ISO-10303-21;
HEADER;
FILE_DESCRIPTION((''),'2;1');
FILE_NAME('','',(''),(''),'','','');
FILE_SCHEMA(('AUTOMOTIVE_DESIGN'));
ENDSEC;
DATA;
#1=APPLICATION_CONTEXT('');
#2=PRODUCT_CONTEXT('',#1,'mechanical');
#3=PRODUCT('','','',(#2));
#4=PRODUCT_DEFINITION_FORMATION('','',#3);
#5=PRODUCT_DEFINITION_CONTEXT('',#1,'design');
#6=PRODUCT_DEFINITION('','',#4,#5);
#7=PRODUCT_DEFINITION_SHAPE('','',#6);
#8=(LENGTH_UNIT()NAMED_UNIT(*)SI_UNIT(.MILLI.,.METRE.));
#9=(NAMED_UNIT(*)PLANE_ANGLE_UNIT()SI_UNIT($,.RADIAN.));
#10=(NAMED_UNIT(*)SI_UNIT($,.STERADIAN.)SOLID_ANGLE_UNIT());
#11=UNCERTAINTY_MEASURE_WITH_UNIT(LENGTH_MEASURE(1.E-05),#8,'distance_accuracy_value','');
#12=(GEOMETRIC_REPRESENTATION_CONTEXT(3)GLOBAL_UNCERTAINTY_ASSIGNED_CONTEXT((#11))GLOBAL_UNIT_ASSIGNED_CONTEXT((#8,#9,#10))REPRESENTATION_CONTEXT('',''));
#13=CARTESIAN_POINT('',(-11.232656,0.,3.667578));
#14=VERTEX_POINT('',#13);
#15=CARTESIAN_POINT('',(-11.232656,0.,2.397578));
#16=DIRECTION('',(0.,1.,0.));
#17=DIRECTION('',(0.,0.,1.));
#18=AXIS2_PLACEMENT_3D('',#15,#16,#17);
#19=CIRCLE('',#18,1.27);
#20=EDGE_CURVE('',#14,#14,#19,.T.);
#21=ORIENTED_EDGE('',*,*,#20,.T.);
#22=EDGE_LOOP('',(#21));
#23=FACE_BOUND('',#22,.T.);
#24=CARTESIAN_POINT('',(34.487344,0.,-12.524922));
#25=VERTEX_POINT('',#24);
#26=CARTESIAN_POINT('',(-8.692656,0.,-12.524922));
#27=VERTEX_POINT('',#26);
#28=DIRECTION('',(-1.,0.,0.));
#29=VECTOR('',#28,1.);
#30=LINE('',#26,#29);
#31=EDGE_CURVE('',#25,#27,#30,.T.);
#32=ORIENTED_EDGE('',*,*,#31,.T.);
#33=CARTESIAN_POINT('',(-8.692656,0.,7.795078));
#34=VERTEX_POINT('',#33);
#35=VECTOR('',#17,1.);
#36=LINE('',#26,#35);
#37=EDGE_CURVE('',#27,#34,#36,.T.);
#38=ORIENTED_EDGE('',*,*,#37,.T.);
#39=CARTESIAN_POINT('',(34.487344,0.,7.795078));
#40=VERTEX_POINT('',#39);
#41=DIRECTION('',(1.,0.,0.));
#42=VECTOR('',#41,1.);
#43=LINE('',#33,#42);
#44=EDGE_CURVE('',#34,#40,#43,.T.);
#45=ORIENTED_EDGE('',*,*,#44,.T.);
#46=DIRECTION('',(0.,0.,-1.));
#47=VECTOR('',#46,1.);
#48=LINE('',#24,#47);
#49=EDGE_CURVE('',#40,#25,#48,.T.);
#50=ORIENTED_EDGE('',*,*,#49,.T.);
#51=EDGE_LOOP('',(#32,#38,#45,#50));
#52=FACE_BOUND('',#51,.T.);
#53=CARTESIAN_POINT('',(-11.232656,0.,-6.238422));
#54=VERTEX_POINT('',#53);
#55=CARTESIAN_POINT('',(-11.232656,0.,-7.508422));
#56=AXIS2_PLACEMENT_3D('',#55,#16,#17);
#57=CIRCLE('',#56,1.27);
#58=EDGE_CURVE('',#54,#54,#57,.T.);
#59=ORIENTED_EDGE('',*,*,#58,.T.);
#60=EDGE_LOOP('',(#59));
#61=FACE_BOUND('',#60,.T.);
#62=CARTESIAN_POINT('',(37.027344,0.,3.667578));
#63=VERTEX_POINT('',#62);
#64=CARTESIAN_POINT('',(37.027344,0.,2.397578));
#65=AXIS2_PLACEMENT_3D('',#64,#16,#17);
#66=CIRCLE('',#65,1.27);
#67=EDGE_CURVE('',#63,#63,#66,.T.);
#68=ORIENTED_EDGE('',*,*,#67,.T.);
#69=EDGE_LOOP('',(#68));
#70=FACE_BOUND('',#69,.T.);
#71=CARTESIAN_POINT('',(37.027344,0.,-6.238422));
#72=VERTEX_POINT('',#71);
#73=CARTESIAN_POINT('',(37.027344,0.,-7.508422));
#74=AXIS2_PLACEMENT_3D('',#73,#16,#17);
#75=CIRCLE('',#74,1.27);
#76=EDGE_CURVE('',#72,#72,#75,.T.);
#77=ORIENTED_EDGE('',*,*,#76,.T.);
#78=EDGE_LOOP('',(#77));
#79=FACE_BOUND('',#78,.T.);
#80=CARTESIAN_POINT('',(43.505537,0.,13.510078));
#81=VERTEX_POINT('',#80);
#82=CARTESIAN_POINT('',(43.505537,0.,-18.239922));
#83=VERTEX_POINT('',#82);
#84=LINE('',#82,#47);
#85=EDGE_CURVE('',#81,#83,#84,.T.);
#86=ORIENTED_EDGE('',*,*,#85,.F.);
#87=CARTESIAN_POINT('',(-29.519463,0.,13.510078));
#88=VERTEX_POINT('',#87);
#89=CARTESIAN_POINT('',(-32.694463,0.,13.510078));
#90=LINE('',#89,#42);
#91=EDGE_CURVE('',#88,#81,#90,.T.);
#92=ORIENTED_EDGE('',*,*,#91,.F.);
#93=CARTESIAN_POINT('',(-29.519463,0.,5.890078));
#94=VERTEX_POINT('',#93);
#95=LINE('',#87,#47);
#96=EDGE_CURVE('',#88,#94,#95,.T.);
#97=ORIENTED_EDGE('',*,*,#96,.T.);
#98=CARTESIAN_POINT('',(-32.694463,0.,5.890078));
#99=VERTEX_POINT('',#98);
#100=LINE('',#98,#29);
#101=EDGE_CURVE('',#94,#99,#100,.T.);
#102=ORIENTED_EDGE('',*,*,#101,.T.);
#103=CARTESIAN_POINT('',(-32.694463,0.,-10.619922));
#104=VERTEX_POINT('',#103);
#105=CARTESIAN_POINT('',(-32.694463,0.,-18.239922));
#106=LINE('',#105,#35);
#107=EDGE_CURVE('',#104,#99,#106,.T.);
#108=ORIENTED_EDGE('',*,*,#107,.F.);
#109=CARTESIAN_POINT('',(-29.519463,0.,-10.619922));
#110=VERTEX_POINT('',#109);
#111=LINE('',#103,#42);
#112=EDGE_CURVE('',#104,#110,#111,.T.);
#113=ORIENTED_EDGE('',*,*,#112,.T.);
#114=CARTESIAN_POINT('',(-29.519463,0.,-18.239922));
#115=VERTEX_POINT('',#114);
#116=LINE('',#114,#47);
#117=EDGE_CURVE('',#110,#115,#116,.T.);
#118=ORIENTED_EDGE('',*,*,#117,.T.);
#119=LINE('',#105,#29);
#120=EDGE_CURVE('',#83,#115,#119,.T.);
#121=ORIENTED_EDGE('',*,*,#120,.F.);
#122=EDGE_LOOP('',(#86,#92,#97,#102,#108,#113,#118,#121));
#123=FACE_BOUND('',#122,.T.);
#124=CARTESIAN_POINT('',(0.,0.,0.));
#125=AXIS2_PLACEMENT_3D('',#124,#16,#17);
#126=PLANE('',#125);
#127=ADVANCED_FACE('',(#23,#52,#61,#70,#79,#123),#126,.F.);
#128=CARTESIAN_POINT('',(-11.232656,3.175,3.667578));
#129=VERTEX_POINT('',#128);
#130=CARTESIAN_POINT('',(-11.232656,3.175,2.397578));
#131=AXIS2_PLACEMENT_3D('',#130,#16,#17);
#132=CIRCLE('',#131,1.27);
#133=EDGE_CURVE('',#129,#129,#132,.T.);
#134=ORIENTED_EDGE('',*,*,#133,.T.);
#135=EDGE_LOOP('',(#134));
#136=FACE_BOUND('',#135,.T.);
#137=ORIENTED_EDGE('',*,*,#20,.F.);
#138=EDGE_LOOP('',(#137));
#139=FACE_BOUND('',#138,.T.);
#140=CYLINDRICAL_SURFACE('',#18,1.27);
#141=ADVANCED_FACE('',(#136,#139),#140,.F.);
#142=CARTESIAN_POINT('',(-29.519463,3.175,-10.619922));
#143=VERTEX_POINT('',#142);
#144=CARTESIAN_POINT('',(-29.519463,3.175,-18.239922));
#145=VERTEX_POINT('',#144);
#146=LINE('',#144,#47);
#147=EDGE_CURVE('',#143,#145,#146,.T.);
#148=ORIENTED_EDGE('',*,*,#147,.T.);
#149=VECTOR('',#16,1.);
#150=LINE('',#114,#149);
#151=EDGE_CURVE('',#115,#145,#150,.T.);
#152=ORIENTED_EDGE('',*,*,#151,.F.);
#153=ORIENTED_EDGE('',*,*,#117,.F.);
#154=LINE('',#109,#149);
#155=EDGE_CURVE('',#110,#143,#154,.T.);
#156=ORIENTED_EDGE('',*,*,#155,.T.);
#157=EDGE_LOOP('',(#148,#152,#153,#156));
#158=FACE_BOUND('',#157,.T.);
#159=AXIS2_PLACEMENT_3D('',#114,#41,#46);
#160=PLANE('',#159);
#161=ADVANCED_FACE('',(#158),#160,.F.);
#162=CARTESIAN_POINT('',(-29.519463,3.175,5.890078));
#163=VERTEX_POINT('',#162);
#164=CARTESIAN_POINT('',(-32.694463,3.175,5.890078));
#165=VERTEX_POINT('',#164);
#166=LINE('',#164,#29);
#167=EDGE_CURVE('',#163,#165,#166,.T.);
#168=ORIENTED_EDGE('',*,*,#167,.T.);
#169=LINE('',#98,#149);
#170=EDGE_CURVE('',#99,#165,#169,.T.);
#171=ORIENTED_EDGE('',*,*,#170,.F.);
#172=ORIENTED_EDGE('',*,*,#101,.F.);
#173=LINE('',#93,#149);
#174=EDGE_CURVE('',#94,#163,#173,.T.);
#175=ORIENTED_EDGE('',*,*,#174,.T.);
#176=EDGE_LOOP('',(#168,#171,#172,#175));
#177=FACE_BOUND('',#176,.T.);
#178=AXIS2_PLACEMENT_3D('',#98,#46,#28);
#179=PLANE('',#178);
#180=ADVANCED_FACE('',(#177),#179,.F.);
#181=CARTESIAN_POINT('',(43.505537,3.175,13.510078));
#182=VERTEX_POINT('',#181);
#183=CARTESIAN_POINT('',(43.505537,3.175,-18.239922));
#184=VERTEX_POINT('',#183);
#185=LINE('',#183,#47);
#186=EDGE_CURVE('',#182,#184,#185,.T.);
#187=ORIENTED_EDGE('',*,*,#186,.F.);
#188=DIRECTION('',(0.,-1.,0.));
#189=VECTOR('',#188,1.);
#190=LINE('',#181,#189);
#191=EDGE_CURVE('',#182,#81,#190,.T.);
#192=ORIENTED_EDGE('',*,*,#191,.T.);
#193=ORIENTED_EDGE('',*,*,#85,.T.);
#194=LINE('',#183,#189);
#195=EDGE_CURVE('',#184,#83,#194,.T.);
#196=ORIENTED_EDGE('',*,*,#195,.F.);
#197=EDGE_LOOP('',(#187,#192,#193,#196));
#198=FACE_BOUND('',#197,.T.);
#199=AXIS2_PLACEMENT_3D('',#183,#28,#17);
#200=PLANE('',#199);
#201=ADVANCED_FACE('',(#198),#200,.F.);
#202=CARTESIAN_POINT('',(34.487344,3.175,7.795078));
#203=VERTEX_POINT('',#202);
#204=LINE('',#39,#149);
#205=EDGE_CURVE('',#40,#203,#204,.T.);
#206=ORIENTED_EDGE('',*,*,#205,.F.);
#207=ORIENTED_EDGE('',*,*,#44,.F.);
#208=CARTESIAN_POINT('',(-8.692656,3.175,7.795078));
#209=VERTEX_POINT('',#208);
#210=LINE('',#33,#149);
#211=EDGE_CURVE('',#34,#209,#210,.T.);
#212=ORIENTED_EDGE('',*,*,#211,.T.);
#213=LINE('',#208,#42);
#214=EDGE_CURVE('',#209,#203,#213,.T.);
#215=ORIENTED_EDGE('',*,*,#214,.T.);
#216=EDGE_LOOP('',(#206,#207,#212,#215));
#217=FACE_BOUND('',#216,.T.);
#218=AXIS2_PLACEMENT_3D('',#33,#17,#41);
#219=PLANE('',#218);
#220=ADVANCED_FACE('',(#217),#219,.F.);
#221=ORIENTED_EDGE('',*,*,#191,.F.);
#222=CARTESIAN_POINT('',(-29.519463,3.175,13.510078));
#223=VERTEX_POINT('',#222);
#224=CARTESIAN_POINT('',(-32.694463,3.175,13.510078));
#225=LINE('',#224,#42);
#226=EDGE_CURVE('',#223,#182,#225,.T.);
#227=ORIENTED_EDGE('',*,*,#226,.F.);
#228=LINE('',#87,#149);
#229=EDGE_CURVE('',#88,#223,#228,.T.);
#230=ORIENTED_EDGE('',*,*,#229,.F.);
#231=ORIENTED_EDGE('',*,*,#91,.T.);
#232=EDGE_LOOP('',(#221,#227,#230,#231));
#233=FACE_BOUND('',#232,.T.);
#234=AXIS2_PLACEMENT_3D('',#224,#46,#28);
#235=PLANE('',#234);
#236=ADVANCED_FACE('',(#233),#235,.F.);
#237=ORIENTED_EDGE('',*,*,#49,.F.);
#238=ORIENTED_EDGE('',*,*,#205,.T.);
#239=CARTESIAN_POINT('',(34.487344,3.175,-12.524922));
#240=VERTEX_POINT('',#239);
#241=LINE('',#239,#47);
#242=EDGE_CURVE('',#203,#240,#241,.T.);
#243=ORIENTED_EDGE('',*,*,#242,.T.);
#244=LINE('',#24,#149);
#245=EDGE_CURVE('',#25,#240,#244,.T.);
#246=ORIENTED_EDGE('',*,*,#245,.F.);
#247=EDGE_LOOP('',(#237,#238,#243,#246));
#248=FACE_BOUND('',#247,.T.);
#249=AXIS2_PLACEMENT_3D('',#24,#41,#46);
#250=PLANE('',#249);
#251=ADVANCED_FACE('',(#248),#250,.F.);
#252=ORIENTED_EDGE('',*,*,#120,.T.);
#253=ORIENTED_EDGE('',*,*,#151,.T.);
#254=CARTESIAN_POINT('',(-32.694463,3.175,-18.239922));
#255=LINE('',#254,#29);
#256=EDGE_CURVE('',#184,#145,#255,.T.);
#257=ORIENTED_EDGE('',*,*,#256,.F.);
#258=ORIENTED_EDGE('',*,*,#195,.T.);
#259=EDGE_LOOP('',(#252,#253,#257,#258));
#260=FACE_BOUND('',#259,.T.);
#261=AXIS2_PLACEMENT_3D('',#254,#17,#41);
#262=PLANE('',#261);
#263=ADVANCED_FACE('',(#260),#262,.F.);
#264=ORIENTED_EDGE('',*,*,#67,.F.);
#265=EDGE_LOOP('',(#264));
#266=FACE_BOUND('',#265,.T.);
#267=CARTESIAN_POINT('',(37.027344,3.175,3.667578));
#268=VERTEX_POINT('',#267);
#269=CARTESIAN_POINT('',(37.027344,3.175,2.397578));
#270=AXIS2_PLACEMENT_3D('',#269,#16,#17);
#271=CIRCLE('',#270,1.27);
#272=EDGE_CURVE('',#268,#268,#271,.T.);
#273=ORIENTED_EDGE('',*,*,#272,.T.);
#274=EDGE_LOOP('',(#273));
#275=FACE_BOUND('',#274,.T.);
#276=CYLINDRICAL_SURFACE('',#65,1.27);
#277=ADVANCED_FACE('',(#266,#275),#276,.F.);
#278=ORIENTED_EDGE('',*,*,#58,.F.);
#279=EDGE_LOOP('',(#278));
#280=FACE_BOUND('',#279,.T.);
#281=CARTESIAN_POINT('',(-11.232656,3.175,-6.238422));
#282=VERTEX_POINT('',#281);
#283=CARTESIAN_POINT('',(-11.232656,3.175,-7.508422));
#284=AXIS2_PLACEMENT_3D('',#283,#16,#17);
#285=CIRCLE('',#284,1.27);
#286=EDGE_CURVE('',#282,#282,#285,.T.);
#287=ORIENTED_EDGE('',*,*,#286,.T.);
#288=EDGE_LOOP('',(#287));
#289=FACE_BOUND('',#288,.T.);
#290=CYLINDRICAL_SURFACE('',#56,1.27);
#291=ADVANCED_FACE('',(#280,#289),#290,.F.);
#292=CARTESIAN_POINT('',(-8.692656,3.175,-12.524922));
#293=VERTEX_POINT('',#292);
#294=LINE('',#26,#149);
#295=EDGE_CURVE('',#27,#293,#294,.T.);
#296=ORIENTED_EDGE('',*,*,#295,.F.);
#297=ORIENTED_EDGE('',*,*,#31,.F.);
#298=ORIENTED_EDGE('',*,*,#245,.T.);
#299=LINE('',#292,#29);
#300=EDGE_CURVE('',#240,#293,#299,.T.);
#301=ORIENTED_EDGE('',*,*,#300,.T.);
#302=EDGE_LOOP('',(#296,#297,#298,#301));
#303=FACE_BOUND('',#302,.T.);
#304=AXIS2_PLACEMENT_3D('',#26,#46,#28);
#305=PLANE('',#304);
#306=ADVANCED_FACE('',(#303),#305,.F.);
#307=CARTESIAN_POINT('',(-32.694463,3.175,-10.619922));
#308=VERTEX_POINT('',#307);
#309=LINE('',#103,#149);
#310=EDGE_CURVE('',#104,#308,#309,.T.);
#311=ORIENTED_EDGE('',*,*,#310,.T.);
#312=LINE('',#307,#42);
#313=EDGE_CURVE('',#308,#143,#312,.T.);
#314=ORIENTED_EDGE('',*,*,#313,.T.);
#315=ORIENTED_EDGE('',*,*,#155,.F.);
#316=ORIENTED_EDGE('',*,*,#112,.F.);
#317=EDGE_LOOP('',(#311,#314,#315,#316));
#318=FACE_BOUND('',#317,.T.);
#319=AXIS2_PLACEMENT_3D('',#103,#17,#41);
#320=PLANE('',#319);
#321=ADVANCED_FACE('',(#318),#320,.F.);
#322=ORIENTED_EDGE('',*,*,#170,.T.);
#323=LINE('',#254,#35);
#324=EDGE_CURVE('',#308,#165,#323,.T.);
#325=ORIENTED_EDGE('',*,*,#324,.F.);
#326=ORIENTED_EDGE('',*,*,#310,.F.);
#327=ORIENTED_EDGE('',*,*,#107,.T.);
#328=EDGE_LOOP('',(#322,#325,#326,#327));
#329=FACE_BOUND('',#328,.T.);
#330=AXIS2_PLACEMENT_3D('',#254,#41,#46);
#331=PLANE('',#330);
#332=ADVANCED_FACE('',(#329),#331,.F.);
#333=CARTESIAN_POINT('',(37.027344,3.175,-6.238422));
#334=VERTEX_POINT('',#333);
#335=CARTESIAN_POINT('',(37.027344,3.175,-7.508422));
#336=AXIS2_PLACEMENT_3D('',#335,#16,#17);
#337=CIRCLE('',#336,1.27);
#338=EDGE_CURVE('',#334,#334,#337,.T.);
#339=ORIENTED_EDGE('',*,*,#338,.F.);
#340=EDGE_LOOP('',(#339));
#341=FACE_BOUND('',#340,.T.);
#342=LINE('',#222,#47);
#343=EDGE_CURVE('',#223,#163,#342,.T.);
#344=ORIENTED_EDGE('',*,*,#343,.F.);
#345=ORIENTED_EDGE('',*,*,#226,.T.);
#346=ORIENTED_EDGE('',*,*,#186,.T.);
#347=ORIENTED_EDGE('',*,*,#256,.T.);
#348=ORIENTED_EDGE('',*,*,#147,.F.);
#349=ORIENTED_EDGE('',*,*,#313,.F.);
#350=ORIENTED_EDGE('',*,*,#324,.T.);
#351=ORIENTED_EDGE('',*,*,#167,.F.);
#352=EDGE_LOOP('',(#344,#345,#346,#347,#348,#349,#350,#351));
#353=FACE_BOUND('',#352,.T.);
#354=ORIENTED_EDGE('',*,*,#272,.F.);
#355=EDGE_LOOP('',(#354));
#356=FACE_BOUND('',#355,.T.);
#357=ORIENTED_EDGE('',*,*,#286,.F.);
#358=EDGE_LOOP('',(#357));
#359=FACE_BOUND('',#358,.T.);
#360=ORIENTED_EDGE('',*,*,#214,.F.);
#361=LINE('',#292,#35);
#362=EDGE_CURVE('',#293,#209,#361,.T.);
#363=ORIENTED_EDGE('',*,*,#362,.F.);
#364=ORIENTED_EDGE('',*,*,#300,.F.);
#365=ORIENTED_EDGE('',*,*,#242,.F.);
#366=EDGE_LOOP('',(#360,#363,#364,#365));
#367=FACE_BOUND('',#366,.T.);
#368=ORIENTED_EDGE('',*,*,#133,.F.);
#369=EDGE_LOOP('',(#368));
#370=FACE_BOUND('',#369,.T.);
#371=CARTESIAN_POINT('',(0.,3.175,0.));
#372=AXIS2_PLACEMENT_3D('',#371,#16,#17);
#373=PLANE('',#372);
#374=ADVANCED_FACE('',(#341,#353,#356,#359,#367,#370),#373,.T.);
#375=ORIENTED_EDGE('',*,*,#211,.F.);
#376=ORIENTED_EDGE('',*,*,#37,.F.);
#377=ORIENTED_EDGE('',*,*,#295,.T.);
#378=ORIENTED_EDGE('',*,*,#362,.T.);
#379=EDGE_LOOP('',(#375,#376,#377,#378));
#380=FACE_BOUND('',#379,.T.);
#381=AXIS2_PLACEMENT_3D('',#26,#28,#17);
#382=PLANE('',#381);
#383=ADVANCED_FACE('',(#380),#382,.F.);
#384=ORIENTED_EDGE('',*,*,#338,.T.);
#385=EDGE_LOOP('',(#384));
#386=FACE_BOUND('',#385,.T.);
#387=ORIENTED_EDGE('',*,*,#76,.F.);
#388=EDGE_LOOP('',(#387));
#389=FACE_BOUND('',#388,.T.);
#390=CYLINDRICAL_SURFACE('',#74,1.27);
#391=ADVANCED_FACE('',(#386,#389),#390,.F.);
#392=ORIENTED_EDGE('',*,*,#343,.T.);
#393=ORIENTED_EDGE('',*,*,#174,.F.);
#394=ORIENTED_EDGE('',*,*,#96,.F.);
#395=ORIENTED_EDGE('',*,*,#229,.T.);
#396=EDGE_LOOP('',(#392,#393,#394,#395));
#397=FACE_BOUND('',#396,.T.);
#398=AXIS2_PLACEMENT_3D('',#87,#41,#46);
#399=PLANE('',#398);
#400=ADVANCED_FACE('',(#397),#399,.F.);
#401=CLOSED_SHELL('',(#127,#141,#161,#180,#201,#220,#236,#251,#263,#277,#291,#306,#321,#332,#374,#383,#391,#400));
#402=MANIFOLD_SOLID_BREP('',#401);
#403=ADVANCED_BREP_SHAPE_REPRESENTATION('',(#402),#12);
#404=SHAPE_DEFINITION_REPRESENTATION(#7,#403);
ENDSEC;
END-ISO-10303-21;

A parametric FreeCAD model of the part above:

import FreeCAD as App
import Part
import Sketcher
Q = App.Units.Quantity

doc = App.newDocument("Part")
params = doc.addObject("Spreadsheet::Sheet", "Params")
for row, (alias, value) in enumerate([
    ("sketch1_width", "3 in"),
    ("sketch1_height", "1.25 in"),
    ("pad1_length", "0.125 in"),
    ("sketch2_diameter", "0.1 in"),
    ("sketch2_width", "1.7 in"),
    ("sketch2_height", "0.3 in"),
    ("sketch2_height2", "0.8 in"),
    ("sketch2_width2", "0.125 in"),
    ("pocket1_length", "0.125 in"),
], start=1):
    params.set(f"A{row}", alias)
    params.set(f"B{row}", "=" + value)
    params.setAlias(f"B{row}", alias)

body = doc.addObject("PartDesign::Body", "Body")

# Sketch on XZ plane
sketch1 = body.newObject("Sketcher::SketchObject", "Sketch")
sketch1.AttachmentSupport = (doc.getObject("XZ_Plane"), [""])
sketch1.MapMode = "FlatFace"
sketch1.addGeometry(Part.LineSegment(App.Vector(-33, -18, 0), App.Vector(-33, 14, 0)), False)
sketch1.addGeometry(Part.LineSegment(App.Vector(-33, 14, 0), App.Vector(44, 14, 0)), False)
sketch1.addGeometry(Part.LineSegment(App.Vector(44, 14, 0), App.Vector(44, -18, 0)), False)
sketch1.addGeometry(Part.LineSegment(App.Vector(44, -18, 0), App.Vector(-33, -18, 0)), False)
sketch1.addConstraint(Sketcher.Constraint("Coincident", 0, 2, 1, 1))
sketch1.addConstraint(Sketcher.Constraint("Coincident", 1, 2, 2, 1))
sketch1.addConstraint(Sketcher.Constraint("Coincident", 2, 2, 3, 1))
sketch1.addConstraint(Sketcher.Constraint("Coincident", 3, 2, 0, 1))
sketch1.addConstraint(Sketcher.Constraint("Vertical", 0))
sketch1.addConstraint(Sketcher.Constraint("Horizontal", 1))
sketch1.addConstraint(Sketcher.Constraint("Vertical", 2))
sketch1.addConstraint(Sketcher.Constraint("Horizontal", 3))
sketch1.addConstraint(Sketcher.Constraint("DistanceX", 1, 1, 1, 2, Q("3 in")))
sketch1.addConstraint(Sketcher.Constraint("DistanceY", 0, 1, 0, 2, Q("1.25 in")))
sketch1.addConstraint(Sketcher.Constraint("DistanceX", 0, 2, -1, 1, Q("32.694463 mm")))
sketch1.addConstraint(Sketcher.Constraint("DistanceY", -1, 1, 0, 2, Q("13.510078 mm")))
sketch1.setExpression("Constraints[8]", "Params.sketch1_width")
sketch1.setExpression("Constraints[9]", "Params.sketch1_height")
pad1 = body.newObject("PartDesign::Pad", "Pad")
pad1.Profile = sketch1
pad1.setExpression("Length", "Params.pad1_length")
pad1.Reversed = True

# Sketch on XZ plane
sketch2 = body.newObject("Sketcher::SketchObject", "Sketch001")
sketch2.AttachmentSupport = (doc.getObject("XZ_Plane"), [""])
sketch2.MapMode = "FlatFace"
sketch2.AttachmentOffset = App.Placement(App.Vector(0, 0, -0.125 * 25.4), App.Rotation())
sketch2.addGeometry(Part.Circle(App.Vector(37, -7.5, 0), App.Vector(0, 0, 1), 1.3), False)
sketch2.addGeometry(Part.Circle(App.Vector(37, 2.4, 0), App.Vector(0, 0, 1), 1.3), False)
sketch2.addGeometry(Part.Circle(App.Vector(-11.2, -7.5, 0), App.Vector(0, 0, 1), 1.3), False)
sketch2.addGeometry(Part.Circle(App.Vector(-11.2, 2.4, 0), App.Vector(0, 0, 1), 1.3), False)
sketch2.addGeometry(Part.LineSegment(App.Vector(-32.7, -18.2, 0), App.Vector(-32.7, -10.6, 0)), False)
sketch2.addGeometry(Part.LineSegment(App.Vector(-32.7, -10.6, 0), App.Vector(-29.5, -10.6, 0)), False)
sketch2.addGeometry(Part.LineSegment(App.Vector(-29.5, -10.6, 0), App.Vector(-29.5, -18.2, 0)), False)
sketch2.addGeometry(Part.LineSegment(App.Vector(-29.5, -18.2, 0), App.Vector(-32.7, -18.2, 0)), False)
sketch2.addGeometry(Part.LineSegment(App.Vector(-32.7, 5.9, 0), App.Vector(-32.7, 13.5, 0)), False)
sketch2.addGeometry(Part.LineSegment(App.Vector(-32.7, 13.5, 0), App.Vector(-29.5, 13.5, 0)), False)
sketch2.addGeometry(Part.LineSegment(App.Vector(-29.5, 13.5, 0), App.Vector(-29.5, 5.9, 0)), False)
sketch2.addGeometry(Part.LineSegment(App.Vector(-29.5, 5.9, 0), App.Vector(-32.7, 5.9, 0)), False)
sketch2.addGeometry(Part.LineSegment(App.Vector(-8.7, -12.5, 0), App.Vector(-8.7, 7.8, 0)), False)
sketch2.addGeometry(Part.LineSegment(App.Vector(-8.7, 7.8, 0), App.Vector(34.5, 7.8, 0)), False)
sketch2.addGeometry(Part.LineSegment(App.Vector(34.5, 7.8, 0), App.Vector(34.5, -12.5, 0)), False)
sketch2.addGeometry(Part.LineSegment(App.Vector(34.5, -12.5, 0), App.Vector(-8.7, -12.5, 0)), False)
sketch2.addConstraint(Sketcher.Constraint("Coincident", 4, 2, 5, 1))
sketch2.addConstraint(Sketcher.Constraint("Coincident", 5, 2, 6, 1))
sketch2.addConstraint(Sketcher.Constraint("Coincident", 6, 2, 7, 1))
sketch2.addConstraint(Sketcher.Constraint("Coincident", 7, 2, 4, 1))
sketch2.addConstraint(Sketcher.Constraint("Coincident", 8, 2, 9, 1))
sketch2.addConstraint(Sketcher.Constraint("Coincident", 9, 2, 10, 1))
sketch2.addConstraint(Sketcher.Constraint("Coincident", 10, 2, 11, 1))
sketch2.addConstraint(Sketcher.Constraint("Coincident", 11, 2, 8, 1))
sketch2.addConstraint(Sketcher.Constraint("Coincident", 12, 2, 13, 1))
sketch2.addConstraint(Sketcher.Constraint("Coincident", 13, 2, 14, 1))
sketch2.addConstraint(Sketcher.Constraint("Coincident", 14, 2, 15, 1))
sketch2.addConstraint(Sketcher.Constraint("Coincident", 15, 2, 12, 1))
sketch2.addConstraint(Sketcher.Constraint("Vertical", 4))
sketch2.addConstraint(Sketcher.Constraint("Horizontal", 5))
sketch2.addConstraint(Sketcher.Constraint("Vertical", 6))
sketch2.addConstraint(Sketcher.Constraint("Horizontal", 7))
sketch2.addConstraint(Sketcher.Constraint("Vertical", 8))
sketch2.addConstraint(Sketcher.Constraint("Horizontal", 9))
sketch2.addConstraint(Sketcher.Constraint("Vertical", 10))
sketch2.addConstraint(Sketcher.Constraint("Horizontal", 11))
sketch2.addConstraint(Sketcher.Constraint("Vertical", 12))
sketch2.addConstraint(Sketcher.Constraint("Horizontal", 13))
sketch2.addConstraint(Sketcher.Constraint("Vertical", 14))
sketch2.addConstraint(Sketcher.Constraint("Horizontal", 15))
sketch2.addConstraint(Sketcher.Constraint("Equal", 0, 1))
sketch2.addConstraint(Sketcher.Constraint("Equal", 1, 2))
sketch2.addConstraint(Sketcher.Constraint("Equal", 2, 3))
sketch2.addConstraint(Sketcher.Constraint("Horizontal", 0, 3, 2, 3))
sketch2.addConstraint(Sketcher.Constraint("Horizontal", 1, 3, 3, 3))
sketch2.addConstraint(Sketcher.Constraint("Vertical", 0, 3, 1, 3))
sketch2.addConstraint(Sketcher.Constraint("Vertical", 2, 3, 3, 3))
sketch2.addConstraint(Sketcher.Constraint("Vertical", 7, 2, 8, 2))
sketch2.addConstraint(Sketcher.Constraint("Vertical", 6, 2, 9, 2))
sketch2.addConstraint(Sketcher.Constraint("Equal", 6, 8))
sketch2.addConstraint(Sketcher.Constraint("Diameter", 0, Q("0.1 in")))
sketch2.addConstraint(Sketcher.Constraint("DistanceX", 13, 1, 13, 2, Q("1.7 in")))
sketch2.addConstraint(Sketcher.Constraint("DistanceY", 4, 1, 4, 2, Q("0.3 in")))
sketch2.addConstraint(Sketcher.Constraint("DistanceY", 12, 1, 12, 2, Q("0.8 in")))
sketch2.addConstraint(Sketcher.Constraint("DistanceX", 2, 3, 0, 3, Q("1.9 in")))
sketch2.addConstraint(Sketcher.Constraint("DistanceX", 3, 3, 12, 2, Q("0.1 in")))
sketch2.addConstraint(Sketcher.Constraint("DistanceX", 5, 1, 5, 2, Q("0.125 in")))
sketch2.addConstraint(Sketcher.Constraint("DistanceY", 0, 3, 1, 3, Q("0.39 in")))
sketch2.addConstraint(Sketcher.Constraint("DistanceY", 4, 2, 8, 2, Q("0.95 in")))
sketch2.addConstraint(Sketcher.Constraint("DistanceY", 6, 2, 3, 3, Q("0.8125 in")))
sketch2.addConstraint(Sketcher.Constraint("DistanceY", 10, 2, 12, 2, Q("0.075 in")))
sketch2.addConstraint(Sketcher.Constraint("DistanceX", -1, 1, 0, 3, Q("37.027344 mm")))
sketch2.addConstraint(Sketcher.Constraint("DistanceY", 0, 3, -1, 1, Q("7.508422 mm")))
sketch2.addConstraint(Sketcher.Constraint("DistanceX", 4, 2, -1, 1, Q("32.694463 mm")))
sketch2.setExpression("Constraints[34]", "Params.sketch2_diameter")
sketch2.setExpression("Constraints[35]", "Params.sketch2_width")
sketch2.setExpression("Constraints[36]", "Params.sketch2_height")
sketch2.setExpression("Constraints[37]", "Params.sketch2_height2")
sketch2.setExpression("Constraints[40]", "Params.sketch2_width2")
pocket1 = body.newObject("PartDesign::Pocket", "Pocket")
pocket1.Profile = sketch2
pocket1.setExpression("Length", "Params.pocket1_length")
pocket1.Reversed = True

doc.recompute()
